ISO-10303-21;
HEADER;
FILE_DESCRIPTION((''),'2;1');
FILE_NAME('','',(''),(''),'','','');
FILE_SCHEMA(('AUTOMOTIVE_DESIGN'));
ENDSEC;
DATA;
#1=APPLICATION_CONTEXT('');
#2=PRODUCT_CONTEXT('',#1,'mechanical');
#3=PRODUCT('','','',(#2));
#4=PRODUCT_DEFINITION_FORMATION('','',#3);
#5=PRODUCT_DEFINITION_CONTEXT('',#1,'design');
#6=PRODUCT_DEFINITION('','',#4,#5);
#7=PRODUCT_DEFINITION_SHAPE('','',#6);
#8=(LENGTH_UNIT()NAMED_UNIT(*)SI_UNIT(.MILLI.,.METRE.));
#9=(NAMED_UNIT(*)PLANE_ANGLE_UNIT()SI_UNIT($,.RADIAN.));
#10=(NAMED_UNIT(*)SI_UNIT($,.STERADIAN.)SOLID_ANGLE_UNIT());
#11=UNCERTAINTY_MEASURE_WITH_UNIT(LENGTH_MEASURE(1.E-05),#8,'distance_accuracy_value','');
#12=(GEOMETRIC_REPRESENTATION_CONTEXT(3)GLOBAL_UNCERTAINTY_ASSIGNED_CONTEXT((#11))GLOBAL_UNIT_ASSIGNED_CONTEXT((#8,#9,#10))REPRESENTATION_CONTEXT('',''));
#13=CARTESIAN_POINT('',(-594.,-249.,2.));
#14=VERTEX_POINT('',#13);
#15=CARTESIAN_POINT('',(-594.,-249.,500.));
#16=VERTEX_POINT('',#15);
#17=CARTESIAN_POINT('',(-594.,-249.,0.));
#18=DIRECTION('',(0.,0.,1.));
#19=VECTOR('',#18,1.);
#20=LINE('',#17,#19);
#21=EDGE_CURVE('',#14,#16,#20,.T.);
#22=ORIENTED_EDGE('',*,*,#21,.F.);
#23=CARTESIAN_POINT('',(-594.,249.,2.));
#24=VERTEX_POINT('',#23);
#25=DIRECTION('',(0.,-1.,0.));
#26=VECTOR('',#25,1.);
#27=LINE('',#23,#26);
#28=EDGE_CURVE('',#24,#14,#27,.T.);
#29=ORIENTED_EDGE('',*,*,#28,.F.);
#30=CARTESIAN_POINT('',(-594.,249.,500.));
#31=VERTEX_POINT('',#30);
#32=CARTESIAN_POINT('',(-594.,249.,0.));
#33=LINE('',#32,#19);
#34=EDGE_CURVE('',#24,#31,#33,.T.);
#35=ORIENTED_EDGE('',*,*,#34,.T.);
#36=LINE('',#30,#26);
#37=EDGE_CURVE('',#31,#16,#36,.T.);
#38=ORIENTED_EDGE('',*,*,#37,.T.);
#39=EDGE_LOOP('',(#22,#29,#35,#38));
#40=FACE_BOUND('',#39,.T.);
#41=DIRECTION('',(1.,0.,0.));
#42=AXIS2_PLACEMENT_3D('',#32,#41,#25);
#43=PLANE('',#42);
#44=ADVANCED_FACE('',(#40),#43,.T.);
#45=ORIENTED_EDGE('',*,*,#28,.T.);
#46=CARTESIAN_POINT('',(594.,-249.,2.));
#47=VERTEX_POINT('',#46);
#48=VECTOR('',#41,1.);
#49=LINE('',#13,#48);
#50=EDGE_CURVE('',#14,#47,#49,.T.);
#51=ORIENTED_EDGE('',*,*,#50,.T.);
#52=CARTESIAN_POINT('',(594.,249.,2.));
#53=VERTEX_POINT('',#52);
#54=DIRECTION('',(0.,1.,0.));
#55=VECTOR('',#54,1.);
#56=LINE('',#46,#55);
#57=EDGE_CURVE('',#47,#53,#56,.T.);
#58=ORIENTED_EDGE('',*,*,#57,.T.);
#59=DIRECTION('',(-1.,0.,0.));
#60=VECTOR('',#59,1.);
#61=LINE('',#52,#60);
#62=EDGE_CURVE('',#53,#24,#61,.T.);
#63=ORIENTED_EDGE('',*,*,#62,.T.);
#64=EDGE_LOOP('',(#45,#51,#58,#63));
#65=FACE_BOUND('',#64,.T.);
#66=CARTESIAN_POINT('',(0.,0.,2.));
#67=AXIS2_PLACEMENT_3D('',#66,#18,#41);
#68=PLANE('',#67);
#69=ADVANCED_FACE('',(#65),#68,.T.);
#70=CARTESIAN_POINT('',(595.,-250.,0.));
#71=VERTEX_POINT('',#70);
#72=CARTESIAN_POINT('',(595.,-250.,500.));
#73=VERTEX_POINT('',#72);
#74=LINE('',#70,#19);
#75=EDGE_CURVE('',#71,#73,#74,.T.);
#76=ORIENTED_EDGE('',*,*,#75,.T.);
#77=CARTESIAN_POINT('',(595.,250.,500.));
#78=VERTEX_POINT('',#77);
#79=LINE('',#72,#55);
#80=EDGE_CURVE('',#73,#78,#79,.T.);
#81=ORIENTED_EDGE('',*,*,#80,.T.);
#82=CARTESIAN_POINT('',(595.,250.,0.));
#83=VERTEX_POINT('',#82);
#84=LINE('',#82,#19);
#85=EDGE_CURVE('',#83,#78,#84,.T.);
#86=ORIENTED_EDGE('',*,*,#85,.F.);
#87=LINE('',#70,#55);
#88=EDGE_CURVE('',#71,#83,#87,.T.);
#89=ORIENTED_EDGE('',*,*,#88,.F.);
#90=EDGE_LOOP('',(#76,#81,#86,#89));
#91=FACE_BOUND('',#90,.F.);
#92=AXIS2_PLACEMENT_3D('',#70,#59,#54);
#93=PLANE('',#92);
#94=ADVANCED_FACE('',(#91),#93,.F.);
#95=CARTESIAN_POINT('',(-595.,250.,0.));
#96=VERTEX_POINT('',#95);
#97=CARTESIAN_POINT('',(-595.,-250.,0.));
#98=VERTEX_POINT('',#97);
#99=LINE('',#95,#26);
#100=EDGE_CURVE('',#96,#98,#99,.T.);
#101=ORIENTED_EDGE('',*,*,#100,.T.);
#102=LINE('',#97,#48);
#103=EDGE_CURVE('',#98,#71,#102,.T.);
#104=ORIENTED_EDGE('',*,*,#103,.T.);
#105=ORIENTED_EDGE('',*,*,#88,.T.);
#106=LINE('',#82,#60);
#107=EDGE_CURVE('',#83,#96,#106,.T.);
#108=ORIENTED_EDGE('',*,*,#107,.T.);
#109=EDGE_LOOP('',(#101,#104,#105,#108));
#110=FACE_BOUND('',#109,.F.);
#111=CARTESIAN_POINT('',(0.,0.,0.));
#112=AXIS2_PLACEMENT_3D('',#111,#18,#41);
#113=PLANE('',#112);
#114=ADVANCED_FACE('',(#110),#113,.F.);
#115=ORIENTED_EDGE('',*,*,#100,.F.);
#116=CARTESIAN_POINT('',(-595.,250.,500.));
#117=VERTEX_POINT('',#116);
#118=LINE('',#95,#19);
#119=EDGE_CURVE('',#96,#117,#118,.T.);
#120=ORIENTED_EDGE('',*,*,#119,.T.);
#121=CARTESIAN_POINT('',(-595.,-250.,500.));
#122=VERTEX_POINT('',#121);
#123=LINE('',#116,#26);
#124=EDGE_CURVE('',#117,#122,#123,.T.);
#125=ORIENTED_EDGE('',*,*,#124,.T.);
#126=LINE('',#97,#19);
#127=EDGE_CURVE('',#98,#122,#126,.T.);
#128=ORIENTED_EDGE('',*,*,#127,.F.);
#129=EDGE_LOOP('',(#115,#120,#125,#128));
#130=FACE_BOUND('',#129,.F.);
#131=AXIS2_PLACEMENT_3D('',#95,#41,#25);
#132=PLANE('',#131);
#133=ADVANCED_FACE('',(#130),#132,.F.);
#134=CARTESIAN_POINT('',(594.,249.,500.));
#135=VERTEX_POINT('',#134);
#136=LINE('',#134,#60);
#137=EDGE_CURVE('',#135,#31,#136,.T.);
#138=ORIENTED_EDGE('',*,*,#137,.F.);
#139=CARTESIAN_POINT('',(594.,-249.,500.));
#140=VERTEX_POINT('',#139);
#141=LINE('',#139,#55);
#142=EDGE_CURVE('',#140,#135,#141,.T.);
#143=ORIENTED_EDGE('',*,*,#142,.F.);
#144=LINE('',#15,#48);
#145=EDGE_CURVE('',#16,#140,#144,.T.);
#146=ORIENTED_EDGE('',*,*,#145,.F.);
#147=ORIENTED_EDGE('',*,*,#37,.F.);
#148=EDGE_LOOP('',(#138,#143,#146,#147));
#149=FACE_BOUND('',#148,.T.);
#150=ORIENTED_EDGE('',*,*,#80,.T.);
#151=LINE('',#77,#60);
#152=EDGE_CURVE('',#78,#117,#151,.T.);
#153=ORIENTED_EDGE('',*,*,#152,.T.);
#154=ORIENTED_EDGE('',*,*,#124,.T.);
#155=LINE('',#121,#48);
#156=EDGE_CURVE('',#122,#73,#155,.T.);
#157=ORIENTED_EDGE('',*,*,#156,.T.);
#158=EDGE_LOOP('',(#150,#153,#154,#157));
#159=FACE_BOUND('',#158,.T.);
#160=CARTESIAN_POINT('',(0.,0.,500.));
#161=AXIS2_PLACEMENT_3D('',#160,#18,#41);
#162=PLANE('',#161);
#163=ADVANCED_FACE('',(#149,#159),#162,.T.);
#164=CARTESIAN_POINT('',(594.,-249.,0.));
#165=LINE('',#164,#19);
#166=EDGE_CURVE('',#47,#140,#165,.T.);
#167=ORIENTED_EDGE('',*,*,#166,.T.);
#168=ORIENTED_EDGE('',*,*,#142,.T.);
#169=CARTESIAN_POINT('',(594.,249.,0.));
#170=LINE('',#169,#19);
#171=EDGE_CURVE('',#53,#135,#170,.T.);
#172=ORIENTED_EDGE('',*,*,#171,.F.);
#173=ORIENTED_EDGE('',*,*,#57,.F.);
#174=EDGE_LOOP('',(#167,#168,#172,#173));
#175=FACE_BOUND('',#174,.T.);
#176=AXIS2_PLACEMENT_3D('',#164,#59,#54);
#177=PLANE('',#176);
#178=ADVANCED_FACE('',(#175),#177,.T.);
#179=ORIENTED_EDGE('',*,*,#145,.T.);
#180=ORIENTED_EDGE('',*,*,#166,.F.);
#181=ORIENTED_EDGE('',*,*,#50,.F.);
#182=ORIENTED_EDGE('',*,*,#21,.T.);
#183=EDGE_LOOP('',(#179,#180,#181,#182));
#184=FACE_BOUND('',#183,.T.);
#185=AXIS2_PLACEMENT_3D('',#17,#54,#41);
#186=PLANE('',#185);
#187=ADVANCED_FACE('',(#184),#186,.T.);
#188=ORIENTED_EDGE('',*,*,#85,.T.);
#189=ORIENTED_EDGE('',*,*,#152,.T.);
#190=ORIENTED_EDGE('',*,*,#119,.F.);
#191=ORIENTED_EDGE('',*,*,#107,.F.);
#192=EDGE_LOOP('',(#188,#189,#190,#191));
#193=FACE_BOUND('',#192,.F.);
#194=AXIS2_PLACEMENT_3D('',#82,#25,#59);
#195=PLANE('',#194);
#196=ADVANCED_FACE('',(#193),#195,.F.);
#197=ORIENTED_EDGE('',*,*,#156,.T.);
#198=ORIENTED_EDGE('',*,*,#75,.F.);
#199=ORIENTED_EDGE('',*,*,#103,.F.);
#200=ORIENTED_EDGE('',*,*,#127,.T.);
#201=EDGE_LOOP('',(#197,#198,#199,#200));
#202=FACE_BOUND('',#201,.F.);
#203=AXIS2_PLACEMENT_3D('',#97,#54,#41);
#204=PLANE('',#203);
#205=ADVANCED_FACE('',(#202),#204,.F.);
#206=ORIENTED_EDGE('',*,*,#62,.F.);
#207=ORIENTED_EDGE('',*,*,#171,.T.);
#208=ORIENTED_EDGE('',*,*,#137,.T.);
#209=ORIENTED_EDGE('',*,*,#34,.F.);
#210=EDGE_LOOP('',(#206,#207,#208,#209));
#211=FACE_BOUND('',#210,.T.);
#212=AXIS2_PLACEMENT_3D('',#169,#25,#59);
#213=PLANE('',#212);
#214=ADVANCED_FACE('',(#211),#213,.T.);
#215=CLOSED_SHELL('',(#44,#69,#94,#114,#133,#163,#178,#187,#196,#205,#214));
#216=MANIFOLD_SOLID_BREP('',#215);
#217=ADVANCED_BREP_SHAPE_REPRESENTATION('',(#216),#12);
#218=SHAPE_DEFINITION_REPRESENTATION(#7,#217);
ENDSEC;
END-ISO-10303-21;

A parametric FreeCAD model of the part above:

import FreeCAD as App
import Part
import Sketcher
from FreeCAD import Vector
Q = App.Units.Quantity


def add_polygon(sketch, points):
    """Adds a closed chain of lines whose ends are joined by coincident constraints."""
    first, n = sketch.GeometryCount, len(points)
    for a, b in zip(points, points[1:] + points[:1]):
        sketch.addGeometry(Part.LineSegment(App.Vector(*a, 0), App.Vector(*b, 0)), False)
    for i in range(n):
        sketch.addConstraint(Sketcher.Constraint("Coincident", first + i, 2, first + (i + 1) % n, 1))

doc = App.newDocument("Part")
body = doc.addObject("PartDesign::Body", "Body")

# Sketch on XY plane
sketch1 = doc.addObject("Sketcher::SketchObject", "Sketch")
body.addObject(sketch1)
sketch1.AttachmentSupport = (doc.XY_Plane, [""])
sketch1.MapMode = "FlatFace"
add_polygon(sketch1, [(595, -250), (595, 250), (-595, 250), (-595, -250)])  # lines 0-3
add_polygon(sketch1, [(-594, 249), (594, 249), (594, -249), (-594, -249)])  # lines 4-7
sketch1.addConstraint([
    Sketcher.Constraint("Vertical", 0),
    Sketcher.Constraint("Horizontal", 1),
    Sketcher.Constraint("Vertical", 2),
    Sketcher.Constraint("Horizontal", 3),
    Sketcher.Constraint("Horizontal", 4),
    Sketcher.Constraint("Vertical", 5),
    Sketcher.Constraint("Horizontal", 6),
    Sketcher.Constraint("Vertical", 7),
    Sketcher.Constraint("Symmetric", 0, 2, 2, 2, -1, 1),
    Sketcher.Constraint("Symmetric", 4, 2, 6, 2, -1, 1),
    Sketcher.Constraint("DistanceX", 1, 2, 1, 1, Q("1190 mm")),
    Sketcher.Constraint("DistanceX", 4, 1, 4, 2, Q("1188 mm")),
    Sketcher.Constraint("DistanceY", 0, 1, 0, 2, Q("500 mm")),
    Sketcher.Constraint("DistanceY", 5, 2, 5, 1, Q("498 mm")),
])
pad1 = doc.addObject("PartDesign::Pad", "Pad")
body.addObject(pad1)
pad1.Profile = sketch1
pad1.Length = 500

# Sketch on XY plane
sketch2 = doc.addObject("Sketcher::SketchObject", "Sketch001")
body.addObject(sketch2)
sketch2.AttachmentSupport = (doc.XY_Plane, [""])
sketch2.MapMode = "FlatFace"
add_polygon(sketch2, [(-594, 249), (-594, -249), (594, -249), (594, 249)])  # lines 0-3
sketch2.addConstraint([
    Sketcher.Constraint("Vertical", 0),
    Sketcher.Constraint("Horizontal", 1),
    Sketcher.Constraint("Vertical", 2),
    Sketcher.Constraint("Horizontal", 3),
    Sketcher.Constraint("Symmetric", 0, 2, 2, 2, -1, 1),
    Sketcher.Constraint("DistanceX", 1, 1, 1, 2, Q("1188 mm")),
    Sketcher.Constraint("DistanceY", 0, 2, 0, 1, Q("498 mm")),
])
pad2 = doc.addObject("PartDesign::Pad", "Pad001")
body.addObject(pad2)
pad2.Profile = sketch2
pad2.Length = 2

doc.recompute()
